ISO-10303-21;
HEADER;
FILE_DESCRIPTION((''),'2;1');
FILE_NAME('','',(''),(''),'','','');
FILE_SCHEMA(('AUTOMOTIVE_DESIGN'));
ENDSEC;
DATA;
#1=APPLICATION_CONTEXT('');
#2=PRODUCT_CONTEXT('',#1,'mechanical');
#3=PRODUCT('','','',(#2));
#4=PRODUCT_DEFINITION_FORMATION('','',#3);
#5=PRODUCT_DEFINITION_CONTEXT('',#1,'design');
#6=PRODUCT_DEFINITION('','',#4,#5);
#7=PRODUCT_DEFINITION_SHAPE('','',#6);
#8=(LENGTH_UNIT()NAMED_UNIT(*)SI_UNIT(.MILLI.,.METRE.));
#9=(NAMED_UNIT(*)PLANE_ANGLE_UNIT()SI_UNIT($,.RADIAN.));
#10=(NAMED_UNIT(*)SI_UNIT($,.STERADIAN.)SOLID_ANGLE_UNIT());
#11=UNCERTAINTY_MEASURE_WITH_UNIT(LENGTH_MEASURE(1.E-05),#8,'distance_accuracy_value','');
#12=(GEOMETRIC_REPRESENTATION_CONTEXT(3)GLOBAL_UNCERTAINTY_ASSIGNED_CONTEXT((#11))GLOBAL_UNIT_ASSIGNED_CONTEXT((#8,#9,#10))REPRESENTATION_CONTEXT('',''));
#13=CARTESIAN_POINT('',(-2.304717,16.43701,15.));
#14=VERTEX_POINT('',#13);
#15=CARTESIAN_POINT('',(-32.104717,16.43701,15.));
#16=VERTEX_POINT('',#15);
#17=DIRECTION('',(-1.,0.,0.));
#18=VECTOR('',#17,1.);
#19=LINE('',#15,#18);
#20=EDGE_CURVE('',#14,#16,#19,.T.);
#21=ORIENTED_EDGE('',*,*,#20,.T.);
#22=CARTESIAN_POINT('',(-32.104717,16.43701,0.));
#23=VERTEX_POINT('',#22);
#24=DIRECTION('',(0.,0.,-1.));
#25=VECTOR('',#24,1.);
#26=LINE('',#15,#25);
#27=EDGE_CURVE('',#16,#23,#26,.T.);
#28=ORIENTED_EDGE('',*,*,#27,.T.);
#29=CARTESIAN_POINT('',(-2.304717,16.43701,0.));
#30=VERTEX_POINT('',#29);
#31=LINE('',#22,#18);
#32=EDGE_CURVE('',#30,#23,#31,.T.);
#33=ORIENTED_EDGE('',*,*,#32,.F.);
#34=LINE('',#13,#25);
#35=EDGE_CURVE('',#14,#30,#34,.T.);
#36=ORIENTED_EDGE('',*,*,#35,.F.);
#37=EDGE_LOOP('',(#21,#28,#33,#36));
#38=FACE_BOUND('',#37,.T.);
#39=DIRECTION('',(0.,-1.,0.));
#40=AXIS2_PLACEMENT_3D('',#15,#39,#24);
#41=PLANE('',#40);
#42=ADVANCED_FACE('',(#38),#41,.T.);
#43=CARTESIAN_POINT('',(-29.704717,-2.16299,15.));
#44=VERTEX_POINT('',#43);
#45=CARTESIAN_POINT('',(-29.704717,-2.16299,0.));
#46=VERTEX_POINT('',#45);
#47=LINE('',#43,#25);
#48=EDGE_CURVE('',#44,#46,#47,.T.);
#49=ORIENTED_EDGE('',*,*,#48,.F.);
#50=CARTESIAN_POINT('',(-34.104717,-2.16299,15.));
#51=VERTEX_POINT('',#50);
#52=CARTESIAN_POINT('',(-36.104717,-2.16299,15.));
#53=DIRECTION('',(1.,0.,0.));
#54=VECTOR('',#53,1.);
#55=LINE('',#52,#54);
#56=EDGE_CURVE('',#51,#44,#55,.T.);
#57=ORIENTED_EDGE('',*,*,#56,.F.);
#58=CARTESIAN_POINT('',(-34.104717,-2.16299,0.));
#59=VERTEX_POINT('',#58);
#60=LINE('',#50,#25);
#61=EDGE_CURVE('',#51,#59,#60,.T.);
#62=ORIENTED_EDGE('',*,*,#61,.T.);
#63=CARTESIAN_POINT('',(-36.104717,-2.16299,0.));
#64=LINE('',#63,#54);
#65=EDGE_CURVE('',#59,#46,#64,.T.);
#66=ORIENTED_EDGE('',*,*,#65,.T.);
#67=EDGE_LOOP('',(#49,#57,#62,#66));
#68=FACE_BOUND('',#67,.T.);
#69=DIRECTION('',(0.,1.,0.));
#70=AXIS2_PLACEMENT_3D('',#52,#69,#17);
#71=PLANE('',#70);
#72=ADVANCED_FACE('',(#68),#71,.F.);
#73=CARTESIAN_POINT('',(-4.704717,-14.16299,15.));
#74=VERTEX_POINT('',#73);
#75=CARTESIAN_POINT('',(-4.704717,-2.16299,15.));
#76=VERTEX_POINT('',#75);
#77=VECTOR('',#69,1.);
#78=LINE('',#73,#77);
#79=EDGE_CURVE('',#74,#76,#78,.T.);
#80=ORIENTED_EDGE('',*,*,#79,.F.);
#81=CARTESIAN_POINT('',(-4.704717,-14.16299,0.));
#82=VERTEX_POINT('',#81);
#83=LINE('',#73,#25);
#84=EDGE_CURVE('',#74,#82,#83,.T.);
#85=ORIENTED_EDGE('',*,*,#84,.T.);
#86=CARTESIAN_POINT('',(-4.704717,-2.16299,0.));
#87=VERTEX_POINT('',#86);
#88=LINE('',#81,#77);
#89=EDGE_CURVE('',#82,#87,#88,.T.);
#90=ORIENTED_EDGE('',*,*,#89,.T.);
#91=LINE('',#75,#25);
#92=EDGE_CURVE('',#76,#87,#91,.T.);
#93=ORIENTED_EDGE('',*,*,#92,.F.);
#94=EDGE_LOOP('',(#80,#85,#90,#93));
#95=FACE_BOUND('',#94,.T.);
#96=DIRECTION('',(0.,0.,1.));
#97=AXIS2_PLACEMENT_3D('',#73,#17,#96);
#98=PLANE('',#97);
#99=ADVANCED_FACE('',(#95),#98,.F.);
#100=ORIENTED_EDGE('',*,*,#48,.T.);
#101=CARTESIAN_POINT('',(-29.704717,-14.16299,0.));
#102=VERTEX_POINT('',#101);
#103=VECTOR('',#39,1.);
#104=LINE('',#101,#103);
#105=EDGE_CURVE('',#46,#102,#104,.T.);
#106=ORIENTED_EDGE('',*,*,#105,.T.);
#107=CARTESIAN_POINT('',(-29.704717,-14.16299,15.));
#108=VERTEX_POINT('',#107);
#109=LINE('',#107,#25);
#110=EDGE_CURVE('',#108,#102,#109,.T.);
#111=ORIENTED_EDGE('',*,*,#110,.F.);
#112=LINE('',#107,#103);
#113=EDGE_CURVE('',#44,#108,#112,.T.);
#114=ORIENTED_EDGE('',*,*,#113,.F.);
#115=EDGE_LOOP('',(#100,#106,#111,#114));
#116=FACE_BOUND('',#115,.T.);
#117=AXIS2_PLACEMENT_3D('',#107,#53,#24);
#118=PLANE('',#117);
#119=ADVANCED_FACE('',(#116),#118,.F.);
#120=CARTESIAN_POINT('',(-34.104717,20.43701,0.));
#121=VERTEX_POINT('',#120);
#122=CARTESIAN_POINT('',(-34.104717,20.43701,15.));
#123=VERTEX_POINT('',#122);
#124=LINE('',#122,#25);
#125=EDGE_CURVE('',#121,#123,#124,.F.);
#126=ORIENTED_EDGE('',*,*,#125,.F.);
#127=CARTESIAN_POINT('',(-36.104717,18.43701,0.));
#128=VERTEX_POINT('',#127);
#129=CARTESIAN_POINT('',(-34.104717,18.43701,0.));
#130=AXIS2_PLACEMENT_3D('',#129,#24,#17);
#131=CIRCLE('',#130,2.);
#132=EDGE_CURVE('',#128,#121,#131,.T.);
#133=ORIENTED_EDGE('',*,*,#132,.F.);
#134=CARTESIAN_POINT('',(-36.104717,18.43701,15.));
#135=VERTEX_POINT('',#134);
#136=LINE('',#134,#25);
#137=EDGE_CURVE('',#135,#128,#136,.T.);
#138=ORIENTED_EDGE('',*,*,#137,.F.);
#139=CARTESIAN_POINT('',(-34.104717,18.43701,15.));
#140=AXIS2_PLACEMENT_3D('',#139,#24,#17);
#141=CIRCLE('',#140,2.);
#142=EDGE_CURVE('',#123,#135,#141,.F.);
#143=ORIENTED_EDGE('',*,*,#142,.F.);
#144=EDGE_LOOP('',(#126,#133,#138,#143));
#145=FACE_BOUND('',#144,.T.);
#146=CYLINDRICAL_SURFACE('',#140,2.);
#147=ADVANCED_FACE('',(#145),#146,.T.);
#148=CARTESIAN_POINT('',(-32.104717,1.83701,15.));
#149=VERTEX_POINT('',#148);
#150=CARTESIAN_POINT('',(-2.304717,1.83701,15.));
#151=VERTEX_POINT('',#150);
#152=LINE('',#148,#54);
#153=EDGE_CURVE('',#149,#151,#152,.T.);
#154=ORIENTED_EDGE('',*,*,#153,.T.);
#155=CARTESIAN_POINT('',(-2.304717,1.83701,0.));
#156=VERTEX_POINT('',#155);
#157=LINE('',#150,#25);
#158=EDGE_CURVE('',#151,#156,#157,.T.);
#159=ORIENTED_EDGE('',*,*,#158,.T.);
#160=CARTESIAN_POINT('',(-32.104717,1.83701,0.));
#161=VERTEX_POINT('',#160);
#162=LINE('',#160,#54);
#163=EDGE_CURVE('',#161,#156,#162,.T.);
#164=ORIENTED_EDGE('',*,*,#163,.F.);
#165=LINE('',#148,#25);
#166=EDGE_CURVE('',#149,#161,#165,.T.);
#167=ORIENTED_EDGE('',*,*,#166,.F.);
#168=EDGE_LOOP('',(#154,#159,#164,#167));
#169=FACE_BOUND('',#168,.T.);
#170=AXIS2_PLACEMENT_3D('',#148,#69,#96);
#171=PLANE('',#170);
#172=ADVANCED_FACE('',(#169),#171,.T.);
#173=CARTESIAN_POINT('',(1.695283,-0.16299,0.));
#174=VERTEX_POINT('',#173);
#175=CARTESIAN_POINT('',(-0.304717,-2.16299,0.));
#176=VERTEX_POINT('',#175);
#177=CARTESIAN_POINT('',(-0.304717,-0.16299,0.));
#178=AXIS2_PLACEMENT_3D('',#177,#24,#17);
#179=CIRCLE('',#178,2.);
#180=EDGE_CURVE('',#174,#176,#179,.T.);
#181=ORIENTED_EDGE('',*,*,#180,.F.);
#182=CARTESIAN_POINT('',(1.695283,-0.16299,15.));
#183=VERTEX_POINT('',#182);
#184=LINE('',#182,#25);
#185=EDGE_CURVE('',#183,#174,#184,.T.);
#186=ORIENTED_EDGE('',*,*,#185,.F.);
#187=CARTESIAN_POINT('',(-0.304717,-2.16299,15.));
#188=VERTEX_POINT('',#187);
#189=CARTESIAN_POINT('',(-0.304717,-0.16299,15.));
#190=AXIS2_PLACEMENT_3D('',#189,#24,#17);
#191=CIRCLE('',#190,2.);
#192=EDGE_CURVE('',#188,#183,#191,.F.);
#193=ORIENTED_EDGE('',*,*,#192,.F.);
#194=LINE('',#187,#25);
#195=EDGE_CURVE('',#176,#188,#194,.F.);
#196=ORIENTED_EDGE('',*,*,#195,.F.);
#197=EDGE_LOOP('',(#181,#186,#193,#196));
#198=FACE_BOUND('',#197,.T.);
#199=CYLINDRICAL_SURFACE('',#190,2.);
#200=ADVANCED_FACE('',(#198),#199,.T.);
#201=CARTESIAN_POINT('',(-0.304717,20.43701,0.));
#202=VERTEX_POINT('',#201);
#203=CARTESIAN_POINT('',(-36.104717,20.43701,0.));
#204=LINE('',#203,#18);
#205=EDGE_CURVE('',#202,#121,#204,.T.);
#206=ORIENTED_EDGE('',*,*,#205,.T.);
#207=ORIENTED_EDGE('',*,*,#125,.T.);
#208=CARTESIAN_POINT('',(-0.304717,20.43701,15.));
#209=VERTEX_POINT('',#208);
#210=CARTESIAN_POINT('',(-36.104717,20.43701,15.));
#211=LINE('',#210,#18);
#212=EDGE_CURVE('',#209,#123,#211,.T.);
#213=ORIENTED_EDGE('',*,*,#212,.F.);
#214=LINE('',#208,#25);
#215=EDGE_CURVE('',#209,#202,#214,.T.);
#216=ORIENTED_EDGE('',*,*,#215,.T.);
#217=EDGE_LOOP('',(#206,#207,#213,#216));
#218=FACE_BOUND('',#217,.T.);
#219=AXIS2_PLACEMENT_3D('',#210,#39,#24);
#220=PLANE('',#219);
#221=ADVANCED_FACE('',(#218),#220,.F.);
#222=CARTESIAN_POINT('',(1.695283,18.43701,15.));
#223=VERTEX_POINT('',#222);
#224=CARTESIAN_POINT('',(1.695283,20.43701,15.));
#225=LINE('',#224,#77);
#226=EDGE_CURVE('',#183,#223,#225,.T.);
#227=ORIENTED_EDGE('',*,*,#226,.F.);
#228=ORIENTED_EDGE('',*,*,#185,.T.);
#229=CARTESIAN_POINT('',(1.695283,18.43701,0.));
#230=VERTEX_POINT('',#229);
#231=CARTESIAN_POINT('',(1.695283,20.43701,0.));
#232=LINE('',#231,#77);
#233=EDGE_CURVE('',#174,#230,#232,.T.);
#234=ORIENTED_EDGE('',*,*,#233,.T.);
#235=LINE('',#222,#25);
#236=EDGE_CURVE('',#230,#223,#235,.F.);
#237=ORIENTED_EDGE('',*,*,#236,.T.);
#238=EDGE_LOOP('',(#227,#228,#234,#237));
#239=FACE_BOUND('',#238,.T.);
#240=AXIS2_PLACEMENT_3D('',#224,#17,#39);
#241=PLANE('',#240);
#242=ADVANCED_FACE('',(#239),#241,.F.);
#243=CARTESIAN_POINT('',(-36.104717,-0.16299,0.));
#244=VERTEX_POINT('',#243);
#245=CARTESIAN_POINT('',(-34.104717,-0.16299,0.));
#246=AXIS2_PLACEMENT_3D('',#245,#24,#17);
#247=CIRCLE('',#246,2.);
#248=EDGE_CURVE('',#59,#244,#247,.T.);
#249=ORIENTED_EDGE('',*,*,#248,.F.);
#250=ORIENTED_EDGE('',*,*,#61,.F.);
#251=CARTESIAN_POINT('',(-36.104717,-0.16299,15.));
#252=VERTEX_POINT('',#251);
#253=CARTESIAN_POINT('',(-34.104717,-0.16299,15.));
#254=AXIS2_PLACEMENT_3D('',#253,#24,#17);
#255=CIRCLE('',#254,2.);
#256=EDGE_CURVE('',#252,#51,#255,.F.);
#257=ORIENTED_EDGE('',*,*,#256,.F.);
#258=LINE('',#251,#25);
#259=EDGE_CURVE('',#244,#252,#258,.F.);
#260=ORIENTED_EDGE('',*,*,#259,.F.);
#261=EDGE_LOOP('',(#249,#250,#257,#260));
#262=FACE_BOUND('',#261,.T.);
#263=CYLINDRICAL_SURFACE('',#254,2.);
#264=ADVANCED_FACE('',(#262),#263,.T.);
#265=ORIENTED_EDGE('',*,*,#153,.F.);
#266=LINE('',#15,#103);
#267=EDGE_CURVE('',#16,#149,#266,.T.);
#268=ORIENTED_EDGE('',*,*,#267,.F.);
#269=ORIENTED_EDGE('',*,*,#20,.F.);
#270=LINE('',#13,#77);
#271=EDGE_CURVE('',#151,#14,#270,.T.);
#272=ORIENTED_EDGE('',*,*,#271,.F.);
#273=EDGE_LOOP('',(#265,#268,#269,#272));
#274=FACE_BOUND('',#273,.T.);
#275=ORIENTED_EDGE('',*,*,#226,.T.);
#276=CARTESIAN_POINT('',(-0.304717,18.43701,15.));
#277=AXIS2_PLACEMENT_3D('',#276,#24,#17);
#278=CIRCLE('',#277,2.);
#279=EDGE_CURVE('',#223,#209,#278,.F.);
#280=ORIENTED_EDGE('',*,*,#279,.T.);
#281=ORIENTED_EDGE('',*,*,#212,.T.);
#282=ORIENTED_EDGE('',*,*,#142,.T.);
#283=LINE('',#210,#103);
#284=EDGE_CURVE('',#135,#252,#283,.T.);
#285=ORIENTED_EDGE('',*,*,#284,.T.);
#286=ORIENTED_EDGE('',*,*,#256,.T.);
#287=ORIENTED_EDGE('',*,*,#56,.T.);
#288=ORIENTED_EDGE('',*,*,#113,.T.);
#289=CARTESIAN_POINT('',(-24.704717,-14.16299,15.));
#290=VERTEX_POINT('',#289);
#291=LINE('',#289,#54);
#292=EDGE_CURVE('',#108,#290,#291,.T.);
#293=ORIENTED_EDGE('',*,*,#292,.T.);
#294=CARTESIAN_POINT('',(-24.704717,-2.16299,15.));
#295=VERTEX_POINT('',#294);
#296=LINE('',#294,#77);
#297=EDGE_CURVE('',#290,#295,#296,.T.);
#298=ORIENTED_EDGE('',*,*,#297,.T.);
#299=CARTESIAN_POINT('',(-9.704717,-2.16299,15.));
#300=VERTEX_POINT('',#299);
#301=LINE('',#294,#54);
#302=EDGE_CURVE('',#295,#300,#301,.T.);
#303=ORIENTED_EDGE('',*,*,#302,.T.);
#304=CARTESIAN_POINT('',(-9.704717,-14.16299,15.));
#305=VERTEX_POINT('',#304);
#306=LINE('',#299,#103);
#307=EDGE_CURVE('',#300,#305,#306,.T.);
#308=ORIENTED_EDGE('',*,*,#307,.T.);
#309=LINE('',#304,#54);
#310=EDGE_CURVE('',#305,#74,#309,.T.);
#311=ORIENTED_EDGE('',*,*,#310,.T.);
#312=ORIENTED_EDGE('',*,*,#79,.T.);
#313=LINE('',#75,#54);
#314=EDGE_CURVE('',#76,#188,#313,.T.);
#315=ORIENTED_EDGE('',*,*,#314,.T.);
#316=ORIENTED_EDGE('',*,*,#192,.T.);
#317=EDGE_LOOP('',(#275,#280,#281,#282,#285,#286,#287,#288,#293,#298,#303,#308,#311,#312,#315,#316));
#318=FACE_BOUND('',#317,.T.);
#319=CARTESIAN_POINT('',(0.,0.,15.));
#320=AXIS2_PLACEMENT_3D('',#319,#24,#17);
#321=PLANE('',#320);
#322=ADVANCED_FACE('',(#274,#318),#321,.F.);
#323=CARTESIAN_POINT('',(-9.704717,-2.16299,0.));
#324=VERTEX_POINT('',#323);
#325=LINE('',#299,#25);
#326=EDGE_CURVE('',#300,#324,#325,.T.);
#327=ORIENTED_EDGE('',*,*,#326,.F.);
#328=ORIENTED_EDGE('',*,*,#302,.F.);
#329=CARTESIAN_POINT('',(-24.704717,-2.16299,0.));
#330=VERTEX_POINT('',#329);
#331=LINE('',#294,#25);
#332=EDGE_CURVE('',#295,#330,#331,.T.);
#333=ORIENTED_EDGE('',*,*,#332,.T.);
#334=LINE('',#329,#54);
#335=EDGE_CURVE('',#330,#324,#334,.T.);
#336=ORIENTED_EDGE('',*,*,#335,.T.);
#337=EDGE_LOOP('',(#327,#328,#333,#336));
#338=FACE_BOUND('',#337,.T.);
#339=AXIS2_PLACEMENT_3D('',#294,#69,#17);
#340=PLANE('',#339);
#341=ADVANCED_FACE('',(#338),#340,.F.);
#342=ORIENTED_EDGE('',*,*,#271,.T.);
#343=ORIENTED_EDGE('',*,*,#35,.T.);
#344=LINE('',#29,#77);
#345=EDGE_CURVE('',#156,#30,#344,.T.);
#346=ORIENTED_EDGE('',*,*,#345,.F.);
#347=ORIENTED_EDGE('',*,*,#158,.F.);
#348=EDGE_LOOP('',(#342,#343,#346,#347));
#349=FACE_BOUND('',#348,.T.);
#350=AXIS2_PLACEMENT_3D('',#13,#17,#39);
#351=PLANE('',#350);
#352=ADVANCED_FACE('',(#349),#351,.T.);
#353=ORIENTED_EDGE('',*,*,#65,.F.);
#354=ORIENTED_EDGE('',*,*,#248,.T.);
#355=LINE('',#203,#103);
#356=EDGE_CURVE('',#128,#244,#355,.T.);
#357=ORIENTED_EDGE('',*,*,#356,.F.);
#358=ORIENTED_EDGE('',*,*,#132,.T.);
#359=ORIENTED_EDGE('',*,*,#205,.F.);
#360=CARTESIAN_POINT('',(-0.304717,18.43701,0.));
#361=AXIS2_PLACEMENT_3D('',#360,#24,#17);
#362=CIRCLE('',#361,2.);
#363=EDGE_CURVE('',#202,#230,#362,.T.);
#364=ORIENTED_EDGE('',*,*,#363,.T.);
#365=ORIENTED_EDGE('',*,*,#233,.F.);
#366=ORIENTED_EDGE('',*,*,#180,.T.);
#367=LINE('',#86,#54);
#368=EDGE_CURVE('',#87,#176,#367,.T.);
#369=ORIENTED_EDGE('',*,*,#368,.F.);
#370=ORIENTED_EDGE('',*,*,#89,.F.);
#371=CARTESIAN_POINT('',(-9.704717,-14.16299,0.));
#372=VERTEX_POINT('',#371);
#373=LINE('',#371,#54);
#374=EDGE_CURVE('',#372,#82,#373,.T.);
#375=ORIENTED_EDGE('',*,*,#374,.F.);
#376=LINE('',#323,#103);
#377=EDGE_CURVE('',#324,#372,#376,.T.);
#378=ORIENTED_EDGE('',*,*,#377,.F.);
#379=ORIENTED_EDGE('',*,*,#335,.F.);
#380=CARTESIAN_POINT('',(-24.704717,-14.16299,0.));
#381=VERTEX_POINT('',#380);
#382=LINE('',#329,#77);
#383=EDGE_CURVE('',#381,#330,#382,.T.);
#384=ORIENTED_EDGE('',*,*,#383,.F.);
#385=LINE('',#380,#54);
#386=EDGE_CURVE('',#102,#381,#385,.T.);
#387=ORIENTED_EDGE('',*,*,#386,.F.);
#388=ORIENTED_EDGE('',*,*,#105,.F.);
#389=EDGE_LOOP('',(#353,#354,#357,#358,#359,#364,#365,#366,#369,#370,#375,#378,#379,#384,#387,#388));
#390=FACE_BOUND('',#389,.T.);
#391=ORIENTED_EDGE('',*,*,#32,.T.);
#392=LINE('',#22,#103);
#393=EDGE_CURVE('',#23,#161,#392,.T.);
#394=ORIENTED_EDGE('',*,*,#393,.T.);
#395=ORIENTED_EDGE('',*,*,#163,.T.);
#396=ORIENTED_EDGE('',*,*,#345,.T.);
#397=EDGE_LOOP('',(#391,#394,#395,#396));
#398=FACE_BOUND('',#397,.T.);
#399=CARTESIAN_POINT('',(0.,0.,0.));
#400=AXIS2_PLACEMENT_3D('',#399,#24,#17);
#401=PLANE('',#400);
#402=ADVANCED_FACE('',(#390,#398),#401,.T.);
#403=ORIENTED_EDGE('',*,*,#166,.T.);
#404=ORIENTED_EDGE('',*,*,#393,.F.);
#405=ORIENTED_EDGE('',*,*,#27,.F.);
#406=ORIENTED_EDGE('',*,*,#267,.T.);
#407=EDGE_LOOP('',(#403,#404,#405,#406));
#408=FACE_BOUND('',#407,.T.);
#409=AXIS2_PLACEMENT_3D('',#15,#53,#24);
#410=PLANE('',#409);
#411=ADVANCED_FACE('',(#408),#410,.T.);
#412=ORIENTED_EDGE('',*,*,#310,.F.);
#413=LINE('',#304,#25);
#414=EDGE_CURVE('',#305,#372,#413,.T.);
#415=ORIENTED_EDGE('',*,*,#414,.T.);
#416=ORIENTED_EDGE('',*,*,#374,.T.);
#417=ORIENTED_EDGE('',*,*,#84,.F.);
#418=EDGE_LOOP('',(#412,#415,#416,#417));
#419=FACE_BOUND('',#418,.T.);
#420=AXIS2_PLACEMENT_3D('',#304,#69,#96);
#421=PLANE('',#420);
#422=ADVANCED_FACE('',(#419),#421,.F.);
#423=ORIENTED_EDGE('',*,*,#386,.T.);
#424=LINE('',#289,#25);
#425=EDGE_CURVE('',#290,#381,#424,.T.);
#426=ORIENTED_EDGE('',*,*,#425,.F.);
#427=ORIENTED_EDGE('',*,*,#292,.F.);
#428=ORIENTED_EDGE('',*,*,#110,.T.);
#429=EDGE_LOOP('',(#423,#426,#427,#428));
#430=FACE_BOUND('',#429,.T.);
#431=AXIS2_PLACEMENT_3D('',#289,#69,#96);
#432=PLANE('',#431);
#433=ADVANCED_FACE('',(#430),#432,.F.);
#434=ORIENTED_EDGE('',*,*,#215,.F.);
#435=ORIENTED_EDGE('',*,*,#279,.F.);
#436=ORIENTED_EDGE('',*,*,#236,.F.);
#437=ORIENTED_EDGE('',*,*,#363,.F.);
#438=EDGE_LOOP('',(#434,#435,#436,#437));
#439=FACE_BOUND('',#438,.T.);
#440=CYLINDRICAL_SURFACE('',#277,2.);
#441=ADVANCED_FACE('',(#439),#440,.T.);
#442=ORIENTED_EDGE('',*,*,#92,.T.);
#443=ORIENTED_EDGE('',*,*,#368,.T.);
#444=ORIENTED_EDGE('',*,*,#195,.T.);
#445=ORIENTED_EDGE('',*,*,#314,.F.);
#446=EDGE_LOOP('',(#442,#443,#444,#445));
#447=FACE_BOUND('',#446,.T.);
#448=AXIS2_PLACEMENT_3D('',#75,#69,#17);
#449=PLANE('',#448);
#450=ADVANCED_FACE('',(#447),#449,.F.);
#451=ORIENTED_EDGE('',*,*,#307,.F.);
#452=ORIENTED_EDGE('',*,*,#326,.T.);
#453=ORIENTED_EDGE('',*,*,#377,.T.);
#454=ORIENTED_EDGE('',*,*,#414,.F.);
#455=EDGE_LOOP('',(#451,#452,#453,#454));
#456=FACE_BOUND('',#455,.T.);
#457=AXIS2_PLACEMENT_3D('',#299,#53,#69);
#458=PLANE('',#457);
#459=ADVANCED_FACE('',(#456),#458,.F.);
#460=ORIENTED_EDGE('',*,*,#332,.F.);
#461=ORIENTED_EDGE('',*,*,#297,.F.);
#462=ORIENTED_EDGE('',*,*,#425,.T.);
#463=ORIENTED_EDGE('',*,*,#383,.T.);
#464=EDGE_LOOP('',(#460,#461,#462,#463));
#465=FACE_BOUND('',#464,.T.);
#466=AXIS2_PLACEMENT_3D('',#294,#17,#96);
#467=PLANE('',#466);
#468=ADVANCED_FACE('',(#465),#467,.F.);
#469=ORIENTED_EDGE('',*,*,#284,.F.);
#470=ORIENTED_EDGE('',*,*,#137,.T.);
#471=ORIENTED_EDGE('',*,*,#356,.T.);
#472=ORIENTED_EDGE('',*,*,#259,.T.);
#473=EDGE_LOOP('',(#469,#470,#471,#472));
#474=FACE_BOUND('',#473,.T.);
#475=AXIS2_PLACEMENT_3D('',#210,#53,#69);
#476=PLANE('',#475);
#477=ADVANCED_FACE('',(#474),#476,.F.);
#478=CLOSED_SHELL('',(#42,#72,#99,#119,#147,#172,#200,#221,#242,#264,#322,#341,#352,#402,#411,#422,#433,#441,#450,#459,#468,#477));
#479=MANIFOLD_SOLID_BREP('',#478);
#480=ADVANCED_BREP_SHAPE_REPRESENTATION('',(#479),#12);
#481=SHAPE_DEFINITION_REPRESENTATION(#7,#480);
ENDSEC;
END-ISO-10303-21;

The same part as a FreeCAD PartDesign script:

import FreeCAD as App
import Part
import Sketcher
from FreeCAD import Vector


def edges_at(feature, points):
    """Names of the edges that pass closest to the given points."""
    edges = feature.Shape.Edges
    near = lambda p: min(range(len(edges)), key=lambda i: edges[i].distToShape(Part.Vertex(*p))[0])
    return sorted({f"Edge{near(p) + 1}" for p in points})

doc = App.newDocument("Part")
body = doc.addObject("PartDesign::Body", "Body")

# Sketch on XY plane
sketch1 = body.newObject("Sketcher::SketchObject", "Sketch")
sketch1.AttachmentSupport = (doc.getObject("XY_Plane"), [""])
sketch1.MapMode = "FlatFace"
sketch1.addGeometry([
    Part.LineSegment(Vector(2, 20, 0), Vector(-36, 20, 0)),  # 0
    Part.LineSegment(Vector(-36, 20, 0), Vector(-36, -2, 0)),  # 1
    Part.LineSegment(Vector(-36, -2, 0), Vector(-30, -2, 0)),  # 2
    Part.LineSegment(Vector(-30, -2, 0), Vector(-30, -14, 0)),  # 3
    Part.LineSegment(Vector(-30, -14, 0), Vector(-25, -14, 0)),  # 4
    Part.LineSegment(Vector(-25, -14, 0), Vector(-25, -2, 0)),  # 5
    Part.LineSegment(Vector(-25, -2, 0), Vector(-10, -2, 0)),  # 6
    Part.LineSegment(Vector(-10, -2, 0), Vector(-10, -14, 0)),  # 7
    Part.LineSegment(Vector(-10, -14, 0), Vector(-5, -14, 0)),  # 8
    Part.LineSegment(Vector(-5, -14, 0), Vector(-5, -2, 0)),  # 9
    Part.LineSegment(Vector(-5, -2, 0), Vector(2, -2, 0)),  # 10
    Part.LineSegment(Vector(2, -2, 0), Vector(2, 20, 0)),  # 11
    Part.LineSegment(Vector(-32, 2, 0), Vector(-32, 16, 0)),  # 12
    Part.LineSegment(Vector(-32, 16, 0), Vector(-2, 16, 0)),  # 13
    Part.LineSegment(Vector(-2, 16, 0), Vector(-2, 2, 0)),  # 14
    Part.LineSegment(Vector(-2, 2, 0), Vector(-32, 2, 0)),  # 15
], False)
sketch1.addConstraint([
    Sketcher.Constraint("Coincident", 0, 2, 1, 1),
    Sketcher.Constraint("Coincident", 1, 2, 2, 1),
    Sketcher.Constraint("Coincident", 2, 2, 3, 1),
    Sketcher.Constraint("Coincident", 3, 2, 4, 1),
    Sketcher.Constraint("Coincident", 4, 2, 5, 1),
    Sketcher.Constraint("Coincident", 5, 2, 6, 1),
    Sketcher.Constraint("Coincident", 6, 2, 7, 1),
    Sketcher.Constraint("Coincident", 7, 2, 8, 1),
    Sketcher.Constraint("Coincident", 8, 2, 9, 1),
    Sketcher.Constraint("Coincident", 9, 2, 10, 1),
    Sketcher.Constraint("Coincident", 10, 2, 11, 1),
    Sketcher.Constraint("Coincident", 11, 2, 0, 1),
    Sketcher.Constraint("Coincident", 12, 2, 13, 1),
    Sketcher.Constraint("Coincident", 13, 2, 14, 1),
    Sketcher.Constraint("Coincident", 14, 2, 15, 1),
    Sketcher.Constraint("Coincident", 15, 2, 12, 1),
    Sketcher.Constraint("Horizontal", 0),
    Sketcher.Constraint("Vertical", 1),
    Sketcher.Constraint("Horizontal", 2),
    Sketcher.Constraint("Vertical", 3),
    Sketcher.Constraint("Horizontal", 4),
    Sketcher.Constraint("Vertical", 5),
    Sketcher.Constraint("Horizontal", 6),
    Sketcher.Constraint("Vertical", 7),
    Sketcher.Constraint("Horizontal", 8),
    Sketcher.Constraint("Vertical", 9),
    Sketcher.Constraint("Horizontal", 10),
    Sketcher.Constraint("Vertical", 11),
    Sketcher.Constraint("Vertical", 12),
    Sketcher.Constraint("Horizontal", 13),
    Sketcher.Constraint("Vertical", 14),
    Sketcher.Constraint("Horizontal", 15),
    Sketcher.Constraint("Horizontal", 2, 2, 5, 2),
    Sketcher.Constraint("Horizontal", 4, 2, 7, 2),
    Sketcher.Constraint("Horizontal", 6, 2, 9, 2),
    Sketcher.Constraint("Equal", 4, 8),
    Sketcher.Constraint("Equal", 2, 10),
    Sketcher.Constraint("DistanceX", 4, 1, 4, 2, 5.0),
    Sketcher.Constraint("DistanceX", 6, 1, 6, 2, 15.0),
    Sketcher.Constraint("DistanceY", 3, 2, 3, 1, 12.0),
    Sketcher.Constraint("DistanceX", 0, 2, 0, 1, 37.8),
    Sketcher.Constraint("DistanceX", 13, 1, 13, 2, 29.8),
    Sketcher.Constraint("DistanceY", 1, 2, 1, 1, 22.6),
    Sketcher.Constraint("DistanceY", 12, 1, 12, 2, 14.6),
    Sketcher.Constraint("DistanceX", 0, 2, 12, 2, 4.0),
    Sketcher.Constraint("DistanceY", 12, 2, 0, 2, 4.0),
    Sketcher.Constraint("DistanceY", -1, 1, 0, 2, 20.43701),
    Sketcher.Constraint("DistanceX", 0, 2, -1, 1, 36.104717),
])
pad1 = body.newObject("PartDesign::Pad", "Pad")
pad1.Profile = sketch1
pad1.Length = 15
doc.recompute()

fillet = body.newObject("PartDesign::Fillet", "Fillet")
fillet.Base = (pad1, edges_at(pad1, [
    (-36.105, -2.163, 7.5),
    (-36.105, 20.437, 7.5),
    (1.695, 20.437, 7.5),
    (1.695, -2.163, 7.5),
]))
fillet.Radius = 2

doc.recompute()
